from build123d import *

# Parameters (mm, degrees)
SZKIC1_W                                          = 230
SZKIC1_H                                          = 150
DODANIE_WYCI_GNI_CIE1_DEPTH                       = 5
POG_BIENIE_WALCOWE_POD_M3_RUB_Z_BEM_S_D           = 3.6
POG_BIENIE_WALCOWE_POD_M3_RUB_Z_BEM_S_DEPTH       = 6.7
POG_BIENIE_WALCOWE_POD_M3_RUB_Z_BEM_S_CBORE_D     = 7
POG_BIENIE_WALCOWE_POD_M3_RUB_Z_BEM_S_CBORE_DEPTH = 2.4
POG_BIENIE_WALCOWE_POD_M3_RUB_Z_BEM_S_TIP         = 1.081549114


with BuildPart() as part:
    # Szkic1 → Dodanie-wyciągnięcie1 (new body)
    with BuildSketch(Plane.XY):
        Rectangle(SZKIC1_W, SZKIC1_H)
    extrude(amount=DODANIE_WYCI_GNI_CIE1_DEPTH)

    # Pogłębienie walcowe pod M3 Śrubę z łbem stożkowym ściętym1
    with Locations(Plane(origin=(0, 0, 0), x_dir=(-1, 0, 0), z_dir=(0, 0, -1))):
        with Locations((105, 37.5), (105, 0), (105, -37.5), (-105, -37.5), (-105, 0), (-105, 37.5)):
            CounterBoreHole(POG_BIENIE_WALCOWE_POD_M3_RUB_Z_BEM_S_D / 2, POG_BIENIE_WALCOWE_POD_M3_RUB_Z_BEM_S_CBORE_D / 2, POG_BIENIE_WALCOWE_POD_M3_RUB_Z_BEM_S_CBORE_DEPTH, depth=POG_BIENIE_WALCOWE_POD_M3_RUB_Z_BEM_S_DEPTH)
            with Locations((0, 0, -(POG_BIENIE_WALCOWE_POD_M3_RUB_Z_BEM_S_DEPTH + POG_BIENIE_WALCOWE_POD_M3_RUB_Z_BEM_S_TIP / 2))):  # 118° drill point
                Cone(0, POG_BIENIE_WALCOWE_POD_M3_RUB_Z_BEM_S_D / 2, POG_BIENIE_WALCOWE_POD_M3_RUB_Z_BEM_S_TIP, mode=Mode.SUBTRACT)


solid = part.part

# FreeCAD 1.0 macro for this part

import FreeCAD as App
import Part
import Sketcher


def add_polygon(sketch, points):
    """Adds a closed chain of lines whose ends are joined by coincident constraints."""
    first, n = sketch.GeometryCount, len(points)
    for a, b in zip(points, points[1:] + points[:1]):
        sketch.addGeometry(Part.LineSegment(App.Vector(*a, 0), App.Vector(*b, 0)), False)
    for i in range(n):
        sketch.addConstraint(Sketcher.Constraint("Coincident", first + i, 2, first + (i + 1) % n, 1))

doc = App.newDocument("Part")
params = doc.addObject("Spreadsheet::Sheet", "Params")
for row, (alias, value) in enumerate([
    ("sketch1_width", "230 mm"),
    ("sketch1_height", "150 mm"),
    ("pad1_length", "5 mm"),
    ("sketch2_diameter", "3.6 mm"),
    ("hole_diameter", "3.6 mm"),
    ("hole_depth", "6.7 mm"),
    ("hole_cbore_diameter", "7 mm"),
    ("hole_cbore_depth", "2.4 mm"),
], start=1):
    params.set(f"A{row}", alias)
    params.set(f"B{row}", "=" + value)
    params.setAlias(f"B{row}", alias)

body = doc.addObject("PartDesign::Body", "Body")

# Sketch on XY plane
sketch1 = doc.addObject("Sketcher::SketchObject", "Sketch")
body.addObject(sketch1)
sketch1.AttachmentSupport = (doc.XY_Plane, [""])
sketch1.MapMode = "FlatFace"
add_polygon(sketch1, [(-115, 75), (-115, -75), (115, -75), (115, 75)])  # lines 0-3
sketch1.addConstraint([
    Sketcher.Constraint("Vertical", 0),
    Sketcher.Constraint("Horizontal", 1),
    Sketcher.Constraint("Vertical", 2),
    Sketcher.Constraint("Horizontal", 3),
    Sketcher.Constraint("Symmetric", 0, 2, 2, 2, -1, 1),
    Sketcher.Constraint("DistanceX", 1, 1, 1, 2, 230.0),
    Sketcher.Constraint("DistanceY", 0, 2, 0, 1, 150.0),
])
sketch1.setExpression("Constraints[9]", "Params.sketch1_width")
sketch1.setExpression("Constraints[10]", "Params.sketch1_height")
pad1 = doc.addObject("PartDesign::Pad", "Pad")
body.addObject(pad1)
pad1.Profile = sketch1
pad1.setExpression("Length", "Params.pad1_length")

# Sketch on XY plane
sketch2 = doc.addObject("Sketcher::SketchObject", "Sketch001")
body.addObject(sketch2)
sketch2.AttachmentSupport = (doc.XY_Plane, [""])
sketch2.MapMode = "FlatFace"
sketch2.addGeometry([
    Part.Circle(App.Vector(-105, 37.5, 0), App.Vector(0, 0, 1), 1.8),  # 0
    Part.Circle(App.Vector(-105, 0, 0), App.Vector(0, 0, 1), 1.8),  # 1
    Part.Circle(App.Vector(-105, -37.5, 0), App.Vector(0, 0, 1), 1.8),  # 2
    Part.Circle(App.Vector(105, -37.5, 0), App.Vector(0, 0, 1), 1.8),  # 3
    Part.Circle(App.Vector(105, 0, 0), App.Vector(0, 0, 1), 1.8),  # 4
    Part.Circle(App.Vector(105, 37.5, 0), App.Vector(0, 0, 1), 1.8),  # 5
], False)
sketch2.addConstraint([
    Sketcher.Constraint("Equal", 0, 1),
    Sketcher.Constraint("Equal", 1, 2),
    Sketcher.Constraint("Equal", 2, 3),
    Sketcher.Constraint("Equal", 3, 4),
    Sketcher.Constraint("Equal", 4, 5),
    Sketcher.Constraint("Symmetric", 0, 3, 3, 3, -1, 1),
    Sketcher.Constraint("Symmetric", 1, 3, 4, 3, -1, 1),
    Sketcher.Constraint("Symmetric", 2, 3, 5, 3, -1, 1),
    Sketcher.Constraint("Symmetric", 2, 3, 3, 3, -2),
    Sketcher.Constraint("PointOnObject", 1, 3, -1),
    Sketcher.Constraint("Vertical", 0, 3, 1, 3),
    Sketcher.Constraint("Diameter", 0, 3.6),
    Sketcher.Constraint("DistanceX", 0, 3, -1, 1, 105.0),
    Sketcher.Constraint("DistanceY", 2, 3, 0, 3, 75.0),
])
sketch2.setExpression("Constraints[11]", "Params.sketch2_diameter")
doc.recompute()
hole = doc.addObject("PartDesign::Hole", "Hole")
body.addObject(hole)
hole.Profile = sketch2
hole.ThreadType = "None"
hole.setExpression("Diameter", "Params.hole_diameter")
hole.DepthType = "Dimension"
hole.setExpression("Depth", "Params.hole_depth")
hole.DrillPoint = "Angled"
hole.DrillPointAngle = 118
hole.HoleCutType = "Counterbore"
hole.setExpression("HoleCutDiameter", "Params.hole_cbore_diameter")
hole.setExpression("HoleCutDepth", "Params.hole_cbore_depth")
hole.Reversed = True

doc.recompute()
